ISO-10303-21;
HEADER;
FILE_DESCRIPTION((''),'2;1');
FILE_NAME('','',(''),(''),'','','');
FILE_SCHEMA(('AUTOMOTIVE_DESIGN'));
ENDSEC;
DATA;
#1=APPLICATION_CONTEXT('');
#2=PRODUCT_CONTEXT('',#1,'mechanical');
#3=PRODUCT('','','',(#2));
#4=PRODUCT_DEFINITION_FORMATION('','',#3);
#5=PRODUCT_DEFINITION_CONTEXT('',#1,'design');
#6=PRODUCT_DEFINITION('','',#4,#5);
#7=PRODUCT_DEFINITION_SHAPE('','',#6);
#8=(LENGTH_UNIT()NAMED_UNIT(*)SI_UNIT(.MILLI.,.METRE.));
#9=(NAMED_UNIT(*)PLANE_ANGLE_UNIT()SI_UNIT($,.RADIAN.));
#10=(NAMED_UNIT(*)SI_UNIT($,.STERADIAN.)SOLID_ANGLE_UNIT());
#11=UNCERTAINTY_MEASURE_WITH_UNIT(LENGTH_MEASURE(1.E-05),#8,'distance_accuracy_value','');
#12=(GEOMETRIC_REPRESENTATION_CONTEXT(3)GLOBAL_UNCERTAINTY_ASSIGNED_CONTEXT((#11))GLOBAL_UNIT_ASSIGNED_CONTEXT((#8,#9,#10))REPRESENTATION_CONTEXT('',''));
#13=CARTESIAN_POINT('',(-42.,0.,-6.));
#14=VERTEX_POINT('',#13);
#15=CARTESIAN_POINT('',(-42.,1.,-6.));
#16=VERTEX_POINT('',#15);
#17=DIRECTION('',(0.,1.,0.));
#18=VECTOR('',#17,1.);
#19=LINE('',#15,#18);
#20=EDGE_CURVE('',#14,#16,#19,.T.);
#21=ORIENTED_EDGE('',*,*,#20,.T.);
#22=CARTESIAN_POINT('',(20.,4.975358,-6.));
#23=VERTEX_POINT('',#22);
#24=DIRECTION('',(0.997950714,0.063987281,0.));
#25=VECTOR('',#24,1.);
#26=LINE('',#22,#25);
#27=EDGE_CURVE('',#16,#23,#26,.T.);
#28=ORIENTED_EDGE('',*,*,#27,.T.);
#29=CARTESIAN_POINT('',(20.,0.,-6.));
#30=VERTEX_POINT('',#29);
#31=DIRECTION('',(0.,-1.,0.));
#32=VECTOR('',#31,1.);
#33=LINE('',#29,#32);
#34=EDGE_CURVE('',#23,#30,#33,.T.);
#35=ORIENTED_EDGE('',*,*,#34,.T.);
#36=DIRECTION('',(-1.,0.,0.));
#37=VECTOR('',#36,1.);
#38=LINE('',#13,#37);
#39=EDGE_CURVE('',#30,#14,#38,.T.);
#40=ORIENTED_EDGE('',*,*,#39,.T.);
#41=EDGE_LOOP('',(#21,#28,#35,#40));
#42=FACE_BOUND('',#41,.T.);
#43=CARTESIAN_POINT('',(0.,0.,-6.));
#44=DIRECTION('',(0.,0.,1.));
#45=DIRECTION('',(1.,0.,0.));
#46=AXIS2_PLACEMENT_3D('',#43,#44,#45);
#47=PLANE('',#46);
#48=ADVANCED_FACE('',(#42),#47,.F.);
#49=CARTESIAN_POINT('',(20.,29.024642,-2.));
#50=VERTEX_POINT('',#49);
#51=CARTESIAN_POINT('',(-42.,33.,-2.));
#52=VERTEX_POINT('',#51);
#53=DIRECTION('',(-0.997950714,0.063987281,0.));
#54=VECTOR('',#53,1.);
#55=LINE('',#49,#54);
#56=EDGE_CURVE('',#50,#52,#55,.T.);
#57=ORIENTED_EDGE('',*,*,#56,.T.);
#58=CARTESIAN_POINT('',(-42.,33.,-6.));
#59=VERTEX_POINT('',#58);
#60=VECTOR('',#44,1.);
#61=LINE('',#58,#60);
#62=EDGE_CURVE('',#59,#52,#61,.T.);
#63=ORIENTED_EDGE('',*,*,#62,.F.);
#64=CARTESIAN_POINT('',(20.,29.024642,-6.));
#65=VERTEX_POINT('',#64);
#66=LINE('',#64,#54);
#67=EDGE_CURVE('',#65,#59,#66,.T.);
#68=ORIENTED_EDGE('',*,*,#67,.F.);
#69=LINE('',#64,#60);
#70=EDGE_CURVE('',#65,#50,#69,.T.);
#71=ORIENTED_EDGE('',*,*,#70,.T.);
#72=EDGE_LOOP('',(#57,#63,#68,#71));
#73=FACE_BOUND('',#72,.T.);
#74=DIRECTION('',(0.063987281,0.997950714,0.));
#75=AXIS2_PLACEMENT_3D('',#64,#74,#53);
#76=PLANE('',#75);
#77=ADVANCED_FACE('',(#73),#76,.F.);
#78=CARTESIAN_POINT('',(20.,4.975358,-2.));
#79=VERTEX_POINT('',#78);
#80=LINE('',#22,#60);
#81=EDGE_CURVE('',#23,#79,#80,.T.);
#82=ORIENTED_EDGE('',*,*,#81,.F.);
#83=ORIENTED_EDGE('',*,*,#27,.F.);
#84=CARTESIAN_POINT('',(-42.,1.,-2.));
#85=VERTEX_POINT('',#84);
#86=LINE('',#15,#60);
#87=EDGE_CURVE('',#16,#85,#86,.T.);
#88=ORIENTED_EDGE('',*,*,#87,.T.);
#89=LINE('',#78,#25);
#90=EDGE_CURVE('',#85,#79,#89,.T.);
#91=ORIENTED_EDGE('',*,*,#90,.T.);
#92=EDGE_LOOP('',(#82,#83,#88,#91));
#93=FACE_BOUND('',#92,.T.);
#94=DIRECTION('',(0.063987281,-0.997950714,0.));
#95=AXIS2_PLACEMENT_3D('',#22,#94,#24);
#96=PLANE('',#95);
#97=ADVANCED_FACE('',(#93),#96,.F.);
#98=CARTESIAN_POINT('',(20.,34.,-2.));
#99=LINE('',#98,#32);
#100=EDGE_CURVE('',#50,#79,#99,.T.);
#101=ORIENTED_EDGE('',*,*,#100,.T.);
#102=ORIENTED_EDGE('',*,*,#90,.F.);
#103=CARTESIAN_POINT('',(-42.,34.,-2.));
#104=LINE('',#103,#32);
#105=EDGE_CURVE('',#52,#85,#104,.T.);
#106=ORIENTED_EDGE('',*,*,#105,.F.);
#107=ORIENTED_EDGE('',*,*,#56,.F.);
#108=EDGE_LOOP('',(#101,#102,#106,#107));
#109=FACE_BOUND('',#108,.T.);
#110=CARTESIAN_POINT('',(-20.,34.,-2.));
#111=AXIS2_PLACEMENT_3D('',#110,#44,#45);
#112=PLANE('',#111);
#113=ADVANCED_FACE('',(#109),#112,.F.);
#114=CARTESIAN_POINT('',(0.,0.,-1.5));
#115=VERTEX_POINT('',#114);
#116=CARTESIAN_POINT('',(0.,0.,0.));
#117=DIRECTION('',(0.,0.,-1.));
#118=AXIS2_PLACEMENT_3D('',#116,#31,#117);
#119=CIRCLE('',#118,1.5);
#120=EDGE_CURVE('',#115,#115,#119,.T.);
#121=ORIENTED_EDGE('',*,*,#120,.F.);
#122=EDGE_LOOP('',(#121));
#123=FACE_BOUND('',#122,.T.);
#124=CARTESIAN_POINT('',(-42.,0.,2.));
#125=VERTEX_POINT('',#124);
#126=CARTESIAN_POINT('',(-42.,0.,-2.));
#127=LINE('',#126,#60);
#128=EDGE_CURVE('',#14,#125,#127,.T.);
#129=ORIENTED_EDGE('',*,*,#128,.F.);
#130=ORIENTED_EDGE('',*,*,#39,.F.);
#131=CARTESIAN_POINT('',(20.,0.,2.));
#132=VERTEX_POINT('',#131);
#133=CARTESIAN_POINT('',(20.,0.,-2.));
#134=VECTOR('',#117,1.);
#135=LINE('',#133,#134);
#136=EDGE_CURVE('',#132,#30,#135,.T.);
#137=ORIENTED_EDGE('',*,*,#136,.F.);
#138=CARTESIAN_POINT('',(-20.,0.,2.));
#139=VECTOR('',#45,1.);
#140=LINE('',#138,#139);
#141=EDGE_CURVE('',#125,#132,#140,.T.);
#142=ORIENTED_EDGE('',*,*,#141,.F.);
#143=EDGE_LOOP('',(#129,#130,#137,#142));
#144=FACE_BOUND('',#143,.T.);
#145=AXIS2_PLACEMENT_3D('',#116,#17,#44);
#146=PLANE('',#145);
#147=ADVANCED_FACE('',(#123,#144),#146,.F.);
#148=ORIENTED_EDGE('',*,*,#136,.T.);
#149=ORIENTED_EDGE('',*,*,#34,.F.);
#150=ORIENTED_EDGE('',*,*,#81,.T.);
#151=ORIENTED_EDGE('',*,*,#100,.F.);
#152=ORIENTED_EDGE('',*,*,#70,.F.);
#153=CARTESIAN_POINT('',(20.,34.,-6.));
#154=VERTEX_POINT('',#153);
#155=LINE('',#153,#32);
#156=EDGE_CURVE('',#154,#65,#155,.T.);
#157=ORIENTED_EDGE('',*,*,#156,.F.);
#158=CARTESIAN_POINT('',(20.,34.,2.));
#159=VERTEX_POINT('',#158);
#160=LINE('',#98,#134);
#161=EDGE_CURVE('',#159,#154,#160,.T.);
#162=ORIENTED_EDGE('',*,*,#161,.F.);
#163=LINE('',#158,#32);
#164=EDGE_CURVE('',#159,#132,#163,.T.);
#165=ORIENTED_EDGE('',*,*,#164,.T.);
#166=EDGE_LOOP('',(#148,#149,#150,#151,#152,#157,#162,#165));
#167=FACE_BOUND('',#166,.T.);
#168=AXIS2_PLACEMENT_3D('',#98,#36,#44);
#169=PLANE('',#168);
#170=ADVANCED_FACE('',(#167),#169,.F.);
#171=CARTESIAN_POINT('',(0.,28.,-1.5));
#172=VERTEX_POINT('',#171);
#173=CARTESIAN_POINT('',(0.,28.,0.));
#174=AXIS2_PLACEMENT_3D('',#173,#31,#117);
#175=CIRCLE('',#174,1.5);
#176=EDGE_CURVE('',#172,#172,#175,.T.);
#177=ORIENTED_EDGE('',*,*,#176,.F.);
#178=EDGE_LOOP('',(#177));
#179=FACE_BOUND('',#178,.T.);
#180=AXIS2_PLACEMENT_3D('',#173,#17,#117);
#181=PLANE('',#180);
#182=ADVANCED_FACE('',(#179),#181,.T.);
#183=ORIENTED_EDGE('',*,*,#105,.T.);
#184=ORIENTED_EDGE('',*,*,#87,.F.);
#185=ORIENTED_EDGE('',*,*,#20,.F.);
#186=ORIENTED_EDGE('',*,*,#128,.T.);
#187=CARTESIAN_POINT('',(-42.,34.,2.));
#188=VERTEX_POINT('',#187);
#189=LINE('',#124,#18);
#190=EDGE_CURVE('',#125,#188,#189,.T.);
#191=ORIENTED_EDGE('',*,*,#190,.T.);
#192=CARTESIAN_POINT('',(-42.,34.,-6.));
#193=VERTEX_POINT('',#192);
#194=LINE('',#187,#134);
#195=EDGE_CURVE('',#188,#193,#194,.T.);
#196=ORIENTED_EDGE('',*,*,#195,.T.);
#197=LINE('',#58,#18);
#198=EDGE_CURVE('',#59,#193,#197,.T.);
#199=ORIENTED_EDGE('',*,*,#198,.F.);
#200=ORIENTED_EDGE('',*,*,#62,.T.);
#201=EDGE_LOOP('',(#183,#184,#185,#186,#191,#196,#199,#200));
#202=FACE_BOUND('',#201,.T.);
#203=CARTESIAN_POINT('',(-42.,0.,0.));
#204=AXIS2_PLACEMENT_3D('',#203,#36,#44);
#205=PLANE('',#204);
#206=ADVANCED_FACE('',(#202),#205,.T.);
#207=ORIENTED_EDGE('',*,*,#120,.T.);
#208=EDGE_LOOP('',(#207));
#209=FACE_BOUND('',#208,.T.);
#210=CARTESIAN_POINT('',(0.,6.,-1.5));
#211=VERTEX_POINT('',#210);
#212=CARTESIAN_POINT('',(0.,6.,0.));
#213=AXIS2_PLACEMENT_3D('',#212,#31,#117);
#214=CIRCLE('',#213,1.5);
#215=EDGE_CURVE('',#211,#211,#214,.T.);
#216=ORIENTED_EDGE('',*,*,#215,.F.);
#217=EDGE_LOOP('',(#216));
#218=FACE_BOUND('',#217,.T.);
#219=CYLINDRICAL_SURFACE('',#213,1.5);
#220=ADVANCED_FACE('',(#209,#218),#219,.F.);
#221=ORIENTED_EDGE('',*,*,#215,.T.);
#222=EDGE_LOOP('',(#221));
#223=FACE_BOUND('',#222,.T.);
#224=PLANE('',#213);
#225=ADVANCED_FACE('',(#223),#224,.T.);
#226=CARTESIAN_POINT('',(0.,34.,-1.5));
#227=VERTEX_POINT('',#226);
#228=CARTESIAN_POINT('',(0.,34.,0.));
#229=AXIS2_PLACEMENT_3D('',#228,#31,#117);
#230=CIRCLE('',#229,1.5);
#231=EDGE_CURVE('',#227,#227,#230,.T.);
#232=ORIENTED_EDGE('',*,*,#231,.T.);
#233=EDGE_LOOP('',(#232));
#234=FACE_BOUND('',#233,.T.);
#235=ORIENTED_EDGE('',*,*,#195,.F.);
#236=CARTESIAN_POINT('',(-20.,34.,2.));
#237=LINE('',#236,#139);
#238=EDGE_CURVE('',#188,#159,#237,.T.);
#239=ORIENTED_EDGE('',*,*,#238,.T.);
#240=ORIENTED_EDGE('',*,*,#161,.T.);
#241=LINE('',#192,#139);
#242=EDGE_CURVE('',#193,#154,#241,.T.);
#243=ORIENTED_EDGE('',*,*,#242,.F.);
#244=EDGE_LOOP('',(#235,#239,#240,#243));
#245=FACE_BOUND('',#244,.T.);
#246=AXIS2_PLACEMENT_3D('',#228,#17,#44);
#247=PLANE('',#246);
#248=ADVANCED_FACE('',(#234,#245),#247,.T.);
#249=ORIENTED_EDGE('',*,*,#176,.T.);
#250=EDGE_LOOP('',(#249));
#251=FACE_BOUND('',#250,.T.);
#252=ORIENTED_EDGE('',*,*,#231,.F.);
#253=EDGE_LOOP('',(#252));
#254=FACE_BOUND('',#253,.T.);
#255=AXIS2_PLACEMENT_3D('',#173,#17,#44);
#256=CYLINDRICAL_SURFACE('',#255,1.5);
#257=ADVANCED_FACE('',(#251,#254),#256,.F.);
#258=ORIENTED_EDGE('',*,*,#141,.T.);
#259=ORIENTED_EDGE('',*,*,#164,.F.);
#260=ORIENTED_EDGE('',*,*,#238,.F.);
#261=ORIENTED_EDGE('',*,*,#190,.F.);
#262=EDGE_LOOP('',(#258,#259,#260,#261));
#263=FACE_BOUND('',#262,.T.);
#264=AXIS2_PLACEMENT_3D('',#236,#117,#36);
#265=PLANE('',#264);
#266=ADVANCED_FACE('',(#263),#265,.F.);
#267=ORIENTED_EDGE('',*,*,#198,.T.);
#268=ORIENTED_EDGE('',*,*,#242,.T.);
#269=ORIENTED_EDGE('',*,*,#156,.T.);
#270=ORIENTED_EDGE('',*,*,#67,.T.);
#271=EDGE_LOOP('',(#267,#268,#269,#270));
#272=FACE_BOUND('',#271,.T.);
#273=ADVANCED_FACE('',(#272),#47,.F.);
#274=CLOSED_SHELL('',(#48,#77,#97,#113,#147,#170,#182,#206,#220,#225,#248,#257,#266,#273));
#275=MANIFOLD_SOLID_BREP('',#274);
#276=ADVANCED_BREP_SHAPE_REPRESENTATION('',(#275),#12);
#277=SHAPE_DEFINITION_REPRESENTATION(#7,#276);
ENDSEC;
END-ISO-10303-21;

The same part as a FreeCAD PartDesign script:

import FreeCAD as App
import Part
import Sketcher

V = App.Vector
Q = App.Units.Quantity

doc = App.newDocument("Part")
body = doc.addObject("PartDesign::Body", "Body")

sketch1 = body.newObject("Sketcher::SketchObject", "Sketch")
sketch1.AttachmentSupport = (doc.getObject("XZ_Plane"), [""])
sketch1.MapMode = "FlatFace"
sketch1.addGeometry([
    Part.LineSegment(V(-20, -2, 0), V(-20, 2, 0)),
    Part.LineSegment(V(-20, 2, 0), V(20, 2, 0)),
    Part.LineSegment(V(20, 2, 0), V(20, -2, 0)),
    Part.LineSegment(V(20, -2, 0), V(-20, -2, 0)),
], False)
sketch1.addConstraint([
    Sketcher.Constraint("Coincident", 0, 2, 1, 1),
    Sketcher.Constraint("Coincident", 1, 2, 2, 1),
    Sketcher.Constraint("Coincident", 2, 2, 3, 1),
    Sketcher.Constraint("Coincident", 3, 2, 0, 1),
    Sketcher.Constraint("Vertical", 0),
    Sketcher.Constraint("Horizontal", 1),
    Sketcher.Constraint("Vertical", 2),
    Sketcher.Constraint("Horizontal", 3),
    Sketcher.Constraint("Symmetric", 0, 2, 2, 2, -1, 1),
    Sketcher.Constraint("DistanceX", 1, 1, 1, 2, Q("40 mm")),
    Sketcher.Constraint("DistanceY", 0, 1, 0, 2, Q("4 mm")),
])
pad1 = body.newObject("PartDesign::Pad", "Pad")
pad1.Profile = sketch1
pad1.Length = 34
pad1.Reversed = True

sketch2 = body.newObject("Sketcher::SketchObject", "Sketch001")
sketch2.AttachmentSupport = (doc.getObject("XZ_Plane"), [""])
sketch2.MapMode = "FlatFace"
sketch2.addGeometry(Part.Circle(V(0, 0, 0), V(0, 0, 1), 1.5), False)
sketch2.addConstraint([
    Sketcher.Constraint("Coincident", 0, 3, -1, 1),
    Sketcher.Constraint("Diameter", 0, Q("3 mm")),
])
pocket1 = body.newObject("PartDesign::Pocket", "Pocket")
pocket1.Profile = sketch2
pocket1.Length = 6
doc.recompute()

datumplane = body.newObject("PartDesign::Plane", "DatumPlane")
datumplane.AttachmentSupport = (doc.getObject("XZ_Plane"), [""])
datumplane.MapMode = "FlatFace"
datumplane.AttachmentOffset = App.Placement(V(0, 0, -17), App.Rotation())
mirrored = body.newObject("PartDesign::Mirrored", "Mirrored")
mirrored.Originals = [pocket1]
mirrored.MirrorPlane = (datumplane, [""])
body.Tip = mirrored

sketch3 = body.newObject("Sketcher::SketchObject", "Sketch002")
sketch3.AttachmentSupport = (doc.getObject("YZ_Plane"), [""])
sketch3.MapMode = "FlatFace"
sketch3.AttachmentOffset = App.Placement(V(0, 0, -20), App.Rotation())
sketch3.addGeometry([
    Part.LineSegment(V(34, -2, 0), V(0, -2, 0)),
    Part.LineSegment(V(0, -2, 0), V(0, 2, 0)),
    Part.LineSegment(V(0, 2, 0), V(34, 2, 0)),
    Part.LineSegment(V(34, 2, 0), V(34, -2, 0)),
], False)
sketch3.addConstraint([
    Sketcher.Constraint("Coincident", 0, 2, 1, 1),
    Sketcher.Constraint("Coincident", 1, 2, 2, 1),
    Sketcher.Constraint("Coincident", 2, 2, 3, 1),
    Sketcher.Constraint("Coincident", 3, 2, 0, 1),
    Sketcher.Constraint("Horizontal", 0),
    Sketcher.Constraint("Vertical", 1),
    Sketcher.Constraint("Horizontal", 2),
    Sketcher.Constraint("Vertical", 3),
    Sketcher.Constraint("Symmetric", 0, 2, 1, 2, -1, 1),
    Sketcher.Constraint("DistanceX", 0, 2, 0, 1, Q("34 mm")),
    Sketcher.Constraint("DistanceY", 1, 1, 1, 2, Q("4 mm")),
])
pad2 = body.newObject("PartDesign::Pad", "Pad001")
pad2.Profile = sketch3
pad2.Length = 22
pad2.Reversed = True

sketch4 = body.newObject("Sketcher::SketchObject", "Sketch003")
sketch4.AttachmentSupport = (doc.getObject("XY_Plane"), [""])
sketch4.MapMode = "FlatFace"
sketch4.AttachmentOffset = App.Placement(V(0, 0, -2), App.Rotation())
sketch4.addGeometry([
    Part.LineSegment(V(20, 29, 0), V(-42, 33, 0)),
    Part.LineSegment(V(-42, 33, 0), V(-42, 34, 0)),
    Part.LineSegment(V(-42, 34, 0), V(20, 34, 0)),
    Part.LineSegment(V(20, 34, 0), V(20, 29, 0)),
    Part.LineSegment(V(20, 0, 0), V(-42, 0, 0)),
    Part.LineSegment(V(-42, 0, 0), V(-42, 1, 0)),
    Part.LineSegment(V(-42, 1, 0), V(20, 5, 0)),
    Part.LineSegment(V(20, 5, 0), V(20, 0, 0)),
], False)
sketch4.addConstraint([
    Sketcher.Constraint("Coincident", 0, 2, 1, 1),
    Sketcher.Constraint("Coincident", 1, 2, 2, 1),
    Sketcher.Constraint("Coincident", 2, 2, 3, 1),
    Sketcher.Constraint("Coincident", 3, 2, 0, 1),
    Sketcher.Constraint("Coincident", 4, 2, 5, 1),
    Sketcher.Constraint("Coincident", 5, 2, 6, 1),
    Sketcher.Constraint("Coincident", 6, 2, 7, 1),
    Sketcher.Constraint("Coincident", 7, 2, 4, 1),
    Sketcher.Constraint("Vertical", 1),
    Sketcher.Constraint("Horizontal", 2),
    Sketcher.Constraint("Vertical", 3),
    Sketcher.Constraint("Horizontal", 4),
    Sketcher.Constraint("Vertical", 5),
    Sketcher.Constraint("Vertical", 7),
    Sketcher.Constraint("PointOnObject", 4, 2, -1),
    Sketcher.Constraint("Vertical", 1, 2, 4, 2),
    Sketcher.Constraint("Vertical", 3, 2, 6, 2),
    Sketcher.Constraint("Equal", 1, 5),
    Sketcher.Constraint("Equal", 3, 7),
    Sketcher.Constraint("DistanceX", 2, 1, 2, 2, Q("62 mm")),
    Sketcher.Constraint("DistanceY", 1, 1, 1, 2, Q("1 mm")),
    Sketcher.Constraint("DistanceX", 0, 2, -1, 1, Q("42 mm")),
    Sketcher.Constraint("DistanceY", -1, 1, 0, 2, Q("33 mm")),
    Sketcher.Constraint("DistanceY", 3, 2, 3, 1, Q("4.975358 mm")),
])
pad3 = body.newObject("PartDesign::Pad", "Pad002")
pad3.Profile = sketch4
pad3.Length = 4
pad3.Reversed = True

doc.recompute()
